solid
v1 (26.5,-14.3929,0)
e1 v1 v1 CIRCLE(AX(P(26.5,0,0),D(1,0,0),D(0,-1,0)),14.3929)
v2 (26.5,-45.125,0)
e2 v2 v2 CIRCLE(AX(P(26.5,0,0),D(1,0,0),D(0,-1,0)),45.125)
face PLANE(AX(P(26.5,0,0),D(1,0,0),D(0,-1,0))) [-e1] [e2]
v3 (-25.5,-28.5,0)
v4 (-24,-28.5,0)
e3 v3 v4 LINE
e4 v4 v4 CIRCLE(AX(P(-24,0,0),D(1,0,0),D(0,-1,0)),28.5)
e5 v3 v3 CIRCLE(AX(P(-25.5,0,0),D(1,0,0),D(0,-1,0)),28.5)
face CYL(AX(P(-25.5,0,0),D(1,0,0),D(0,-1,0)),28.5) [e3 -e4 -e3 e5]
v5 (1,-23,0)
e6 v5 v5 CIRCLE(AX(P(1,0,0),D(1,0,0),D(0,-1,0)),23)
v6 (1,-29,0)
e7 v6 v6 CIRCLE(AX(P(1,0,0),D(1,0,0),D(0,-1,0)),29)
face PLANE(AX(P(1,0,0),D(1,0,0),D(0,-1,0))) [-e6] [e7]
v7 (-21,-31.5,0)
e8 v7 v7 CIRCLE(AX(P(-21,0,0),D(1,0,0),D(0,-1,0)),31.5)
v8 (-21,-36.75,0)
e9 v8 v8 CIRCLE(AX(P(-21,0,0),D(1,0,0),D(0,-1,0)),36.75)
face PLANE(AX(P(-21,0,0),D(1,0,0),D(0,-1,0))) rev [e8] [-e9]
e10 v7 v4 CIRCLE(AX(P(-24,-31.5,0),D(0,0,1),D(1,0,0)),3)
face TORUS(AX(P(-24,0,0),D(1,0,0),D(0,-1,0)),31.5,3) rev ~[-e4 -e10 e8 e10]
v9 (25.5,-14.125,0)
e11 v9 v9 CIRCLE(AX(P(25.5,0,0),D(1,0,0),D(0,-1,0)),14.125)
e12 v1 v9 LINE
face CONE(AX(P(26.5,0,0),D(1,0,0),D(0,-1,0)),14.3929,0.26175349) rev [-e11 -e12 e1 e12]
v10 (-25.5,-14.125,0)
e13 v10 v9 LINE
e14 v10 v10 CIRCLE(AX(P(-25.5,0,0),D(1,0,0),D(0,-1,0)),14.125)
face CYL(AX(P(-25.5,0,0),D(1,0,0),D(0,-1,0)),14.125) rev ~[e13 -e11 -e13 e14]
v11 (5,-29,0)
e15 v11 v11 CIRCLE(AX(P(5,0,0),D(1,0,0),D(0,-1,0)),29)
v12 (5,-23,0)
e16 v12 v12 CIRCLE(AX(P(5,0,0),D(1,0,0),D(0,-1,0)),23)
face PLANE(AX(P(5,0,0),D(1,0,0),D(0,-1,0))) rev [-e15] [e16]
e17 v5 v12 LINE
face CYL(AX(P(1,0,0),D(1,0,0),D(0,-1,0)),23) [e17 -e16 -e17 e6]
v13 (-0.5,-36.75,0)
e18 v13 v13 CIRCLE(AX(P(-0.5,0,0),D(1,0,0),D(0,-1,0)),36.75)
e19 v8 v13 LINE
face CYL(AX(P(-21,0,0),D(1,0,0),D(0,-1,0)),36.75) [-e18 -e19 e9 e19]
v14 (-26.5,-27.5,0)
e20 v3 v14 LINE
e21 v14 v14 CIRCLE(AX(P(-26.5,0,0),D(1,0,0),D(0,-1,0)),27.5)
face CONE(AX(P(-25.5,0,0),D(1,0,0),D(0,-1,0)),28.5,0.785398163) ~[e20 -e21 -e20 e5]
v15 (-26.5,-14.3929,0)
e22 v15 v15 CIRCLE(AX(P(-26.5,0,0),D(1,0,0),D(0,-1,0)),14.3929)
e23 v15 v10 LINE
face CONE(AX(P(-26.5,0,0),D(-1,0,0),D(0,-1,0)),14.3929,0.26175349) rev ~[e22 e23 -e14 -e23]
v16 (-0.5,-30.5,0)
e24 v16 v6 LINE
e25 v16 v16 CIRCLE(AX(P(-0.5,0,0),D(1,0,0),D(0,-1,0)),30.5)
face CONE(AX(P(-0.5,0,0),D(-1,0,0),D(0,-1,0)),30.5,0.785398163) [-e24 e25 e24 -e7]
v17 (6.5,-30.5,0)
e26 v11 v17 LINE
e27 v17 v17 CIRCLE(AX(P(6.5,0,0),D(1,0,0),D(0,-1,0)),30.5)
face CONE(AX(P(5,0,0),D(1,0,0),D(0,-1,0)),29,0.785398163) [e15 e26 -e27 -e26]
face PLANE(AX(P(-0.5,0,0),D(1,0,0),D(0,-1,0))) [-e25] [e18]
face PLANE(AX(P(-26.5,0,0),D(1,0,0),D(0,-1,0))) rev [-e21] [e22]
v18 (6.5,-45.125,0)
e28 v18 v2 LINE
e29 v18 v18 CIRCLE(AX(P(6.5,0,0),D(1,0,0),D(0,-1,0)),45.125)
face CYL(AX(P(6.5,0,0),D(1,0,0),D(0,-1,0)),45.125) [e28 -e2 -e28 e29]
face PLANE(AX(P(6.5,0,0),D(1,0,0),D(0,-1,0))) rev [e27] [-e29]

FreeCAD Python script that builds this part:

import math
import FreeCAD as App
import Part
import Sketcher
Q = App.Units.Quantity

doc = App.newDocument("Part")
body = doc.addObject("PartDesign::Body", "Body")

# Sketch on XY plane
sketch1 = body.newObject("Sketcher::SketchObject", "Sketch")
sketch1.AttachmentSupport = (doc.getObject("XY_Plane"), [""])
sketch1.MapMode = "FlatFace"
sketch1.addGeometry(Part.LineSegment(App.Vector(-25.5, -14.1, 0), App.Vector(-26.5, -14.4, 0)), False)
sketch1.addGeometry(Part.LineSegment(App.Vector(-26.5, -14.4, 0), App.Vector(-26.5, -27.5, 0)), False)
sketch1.addGeometry(Part.LineSegment(App.Vector(-26.5, -27.5, 0), App.Vector(-25.5, -28.5, 0)), False)
sketch1.addGeometry(Part.LineSegment(App.Vector(-25.5, -28.5, 0), App.Vector(-24, -28.5, 0)), False)
sketch1.addGeometry(Part.ArcOfCircle(Part.Circle(App.Vector(-24, -31.5, 0), App.Vector(0, 0, 1), 3), math.radians(0), math.radians(90)), False)
sketch1.addGeometry(Part.LineSegment(App.Vector(-21, -31.5, 0), App.Vector(-21, -36.8, 0)), False)
sketch1.addGeometry(Part.LineSegment(App.Vector(-21, -36.8, 0), App.Vector(-0.5, -36.8, 0)), False)
sketch1.addGeometry(Part.LineSegment(App.Vector(-0.5, -36.8, 0), App.Vector(-0.5, -30.5, 0)), False)
sketch1.addGeometry(Part.LineSegment(App.Vector(-0.5, -30.5, 0), App.Vector(1, -29, 0)), False)
sketch1.addGeometry(Part.LineSegment(App.Vector(1, -29, 0), App.Vector(1, -23, 0)), False)
sketch1.addGeometry(Part.LineSegment(App.Vector(1, -23, 0), App.Vector(5, -23, 0)), False)
sketch1.addGeometry(Part.LineSegment(App.Vector(5, -23, 0), App.Vector(5, -29, 0)), False)
sketch1.addGeometry(Part.LineSegment(App.Vector(5, -29, 0), App.Vector(6.5, -30.5, 0)), False)
sketch1.addGeometry(Part.LineSegment(App.Vector(6.5, -30.5, 0), App.Vector(6.5, -45.1, 0)), False)
sketch1.addGeometry(Part.LineSegment(App.Vector(6.5, -45.1, 0), App.Vector(26.5, -45.1, 0)), False)
sketch1.addGeometry(Part.LineSegment(App.Vector(26.5, -45.1, 0), App.Vector(26.5, -14.4, 0)), False)
sketch1.addGeometry(Part.LineSegment(App.Vector(26.5, -14.4, 0), App.Vector(25.5, -14.1, 0)), False)
sketch1.addGeometry(Part.LineSegment(App.Vector(25.5, -14.1, 0), App.Vector(-25.5, -14.1, 0)), False)
sketch1.addConstraint(Sketcher.Constraint("Coincident", 0, 2, 1, 1))
sketch1.addConstraint(Sketcher.Constraint("Coincident", 1, 2, 2, 1))
sketch1.addConstraint(Sketcher.Constraint("Coincident", 2, 2, 3, 1))
sketch1.addConstraint(Sketcher.Constraint("Tangent", 3, 2, 4, 2))
sketch1.addConstraint(Sketcher.Constraint("Tangent", 4, 1, 5, 1))
sketch1.addConstraint(Sketcher.Constraint("Coincident", 5, 2, 6, 1))
sketch1.addConstraint(Sketcher.Constraint("Coincident", 6, 2, 7, 1))
sketch1.addConstraint(Sketcher.Constraint("Coincident", 7, 2, 8, 1))
sketch1.addConstraint(Sketcher.Constraint("Coincident", 8, 2, 9, 1))
sketch1.addConstraint(Sketcher.Constraint("Coincident", 9, 2, 10, 1))
sketch1.addConstraint(Sketcher.Constraint("Coincident", 10, 2, 11, 1))
sketch1.addConstraint(Sketcher.Constraint("Coincident", 11, 2, 12, 1))
sketch1.addConstraint(Sketcher.Constraint("Coincident", 12, 2, 13, 1))
sketch1.addConstraint(Sketcher.Constraint("Coincident", 13, 2, 14, 1))
sketch1.addConstraint(Sketcher.Constraint("Coincident", 14, 2, 15, 1))
sketch1.addConstraint(Sketcher.Constraint("Coincident", 15, 2, 16, 1))
sketch1.addConstraint(Sketcher.Constraint("Coincident", 16, 2, 17, 1))
sketch1.addConstraint(Sketcher.Constraint("Coincident", 17, 2, 0, 1))
sketch1.addConstraint(Sketcher.Constraint("Vertical", 1))
sketch1.addConstraint(Sketcher.Constraint("Horizontal", 3))
sketch1.addConstraint(Sketcher.Constraint("Vertical", 5))
sketch1.addConstraint(Sketcher.Constraint("Horizontal", 6))
sketch1.addConstraint(Sketcher.Constraint("Vertical", 7))
sketch1.addConstraint(Sketcher.Constraint("Vertical", 9))
sketch1.addConstraint(Sketcher.Constraint("Horizontal", 10))
sketch1.addConstraint(Sketcher.Constraint("Vertical", 11))
sketch1.addConstraint(Sketcher.Constraint("Vertical", 13))
sketch1.addConstraint(Sketcher.Constraint("Horizontal", 14))
sketch1.addConstraint(Sketcher.Constraint("Vertical", 15))
sketch1.addConstraint(Sketcher.Constraint("Horizontal", 17))
sketch1.addConstraint(Sketcher.Constraint("Symmetric", 0, 2, 15, 2, -2))
sketch1.addConstraint(Sketcher.Constraint("Perpendicular", 2, 8))
sketch1.addConstraint(Sketcher.Constraint("Perpendicular", 8, 12))
sketch1.addConstraint(Sketcher.Constraint("Horizontal", 8, 2, 11, 2))
sketch1.addConstraint(Sketcher.Constraint("Horizontal", 7, 2, 12, 2))
sketch1.addConstraint(Sketcher.Constraint("Vertical", 2, 2, 17, 2))
sketch1.addConstraint(Sketcher.Constraint("Equal", 8, 12))
sketch1.addConstraint(Sketcher.Constraint("Equal", 0, 16))
sketch1.addConstraint(Sketcher.Constraint("Radius", 4, Q("3 mm")))
sketch1.addConstraint(Sketcher.Constraint("DistanceX", 10, 1, 10, 2, Q("4 mm")))
sketch1.addConstraint(Sketcher.Constraint("DistanceX", 14, 1, 14, 2, Q("20 mm")))
sketch1.addConstraint(Sketcher.Constraint("DistanceX", -1, 1, 8, 2, Q("1 mm")))
sketch1.addConstraint(Sketcher.Constraint("DistanceY", 4, 3, 1, 2, Q("4 mm")))
sketch1.addConstraint(Sketcher.Constraint("DistanceY", 4, 1, 7, 2, Q("1 mm")))
sketch1.addConstraint(Sketcher.Constraint("DistanceX", 7, 2, 12, 2, Q("7 mm")))
sketch1.addConstraint(Sketcher.Constraint("DistanceX", 1, 2, 4, 1, Q("5.5 mm")))
sketch1.addConstraint(Sketcher.Constraint("DistanceY", 3, 2, 9, 2, Q("5.5 mm")))
sketch1.addConstraint(Sketcher.Constraint("DistanceY", 8, 2, -1, 1, Q("29 mm")))
sketch1.addConstraint(Sketcher.Constraint("DistanceY", 5, 2, 5, 1, Q("5.25 mm")))
sketch1.addConstraint(Sketcher.Constraint("DistanceY", 1, 2, 1, 1, Q("13.107 mm")))
sketch1.addConstraint(Sketcher.Constraint("DistanceY", 13, 2, 13, 1, Q("14.625 mm")))
sketch1.addConstraint(Sketcher.Constraint("DistanceY", 16, 2, -1, 1, Q("14.125 mm")))
revolution = body.newObject("PartDesign::Revolution", "Revolution")
revolution.Profile = sketch1
revolution.ReferenceAxis = (sketch1, ["H_Axis"])
revolution.Angle = 360

doc.recompute()
